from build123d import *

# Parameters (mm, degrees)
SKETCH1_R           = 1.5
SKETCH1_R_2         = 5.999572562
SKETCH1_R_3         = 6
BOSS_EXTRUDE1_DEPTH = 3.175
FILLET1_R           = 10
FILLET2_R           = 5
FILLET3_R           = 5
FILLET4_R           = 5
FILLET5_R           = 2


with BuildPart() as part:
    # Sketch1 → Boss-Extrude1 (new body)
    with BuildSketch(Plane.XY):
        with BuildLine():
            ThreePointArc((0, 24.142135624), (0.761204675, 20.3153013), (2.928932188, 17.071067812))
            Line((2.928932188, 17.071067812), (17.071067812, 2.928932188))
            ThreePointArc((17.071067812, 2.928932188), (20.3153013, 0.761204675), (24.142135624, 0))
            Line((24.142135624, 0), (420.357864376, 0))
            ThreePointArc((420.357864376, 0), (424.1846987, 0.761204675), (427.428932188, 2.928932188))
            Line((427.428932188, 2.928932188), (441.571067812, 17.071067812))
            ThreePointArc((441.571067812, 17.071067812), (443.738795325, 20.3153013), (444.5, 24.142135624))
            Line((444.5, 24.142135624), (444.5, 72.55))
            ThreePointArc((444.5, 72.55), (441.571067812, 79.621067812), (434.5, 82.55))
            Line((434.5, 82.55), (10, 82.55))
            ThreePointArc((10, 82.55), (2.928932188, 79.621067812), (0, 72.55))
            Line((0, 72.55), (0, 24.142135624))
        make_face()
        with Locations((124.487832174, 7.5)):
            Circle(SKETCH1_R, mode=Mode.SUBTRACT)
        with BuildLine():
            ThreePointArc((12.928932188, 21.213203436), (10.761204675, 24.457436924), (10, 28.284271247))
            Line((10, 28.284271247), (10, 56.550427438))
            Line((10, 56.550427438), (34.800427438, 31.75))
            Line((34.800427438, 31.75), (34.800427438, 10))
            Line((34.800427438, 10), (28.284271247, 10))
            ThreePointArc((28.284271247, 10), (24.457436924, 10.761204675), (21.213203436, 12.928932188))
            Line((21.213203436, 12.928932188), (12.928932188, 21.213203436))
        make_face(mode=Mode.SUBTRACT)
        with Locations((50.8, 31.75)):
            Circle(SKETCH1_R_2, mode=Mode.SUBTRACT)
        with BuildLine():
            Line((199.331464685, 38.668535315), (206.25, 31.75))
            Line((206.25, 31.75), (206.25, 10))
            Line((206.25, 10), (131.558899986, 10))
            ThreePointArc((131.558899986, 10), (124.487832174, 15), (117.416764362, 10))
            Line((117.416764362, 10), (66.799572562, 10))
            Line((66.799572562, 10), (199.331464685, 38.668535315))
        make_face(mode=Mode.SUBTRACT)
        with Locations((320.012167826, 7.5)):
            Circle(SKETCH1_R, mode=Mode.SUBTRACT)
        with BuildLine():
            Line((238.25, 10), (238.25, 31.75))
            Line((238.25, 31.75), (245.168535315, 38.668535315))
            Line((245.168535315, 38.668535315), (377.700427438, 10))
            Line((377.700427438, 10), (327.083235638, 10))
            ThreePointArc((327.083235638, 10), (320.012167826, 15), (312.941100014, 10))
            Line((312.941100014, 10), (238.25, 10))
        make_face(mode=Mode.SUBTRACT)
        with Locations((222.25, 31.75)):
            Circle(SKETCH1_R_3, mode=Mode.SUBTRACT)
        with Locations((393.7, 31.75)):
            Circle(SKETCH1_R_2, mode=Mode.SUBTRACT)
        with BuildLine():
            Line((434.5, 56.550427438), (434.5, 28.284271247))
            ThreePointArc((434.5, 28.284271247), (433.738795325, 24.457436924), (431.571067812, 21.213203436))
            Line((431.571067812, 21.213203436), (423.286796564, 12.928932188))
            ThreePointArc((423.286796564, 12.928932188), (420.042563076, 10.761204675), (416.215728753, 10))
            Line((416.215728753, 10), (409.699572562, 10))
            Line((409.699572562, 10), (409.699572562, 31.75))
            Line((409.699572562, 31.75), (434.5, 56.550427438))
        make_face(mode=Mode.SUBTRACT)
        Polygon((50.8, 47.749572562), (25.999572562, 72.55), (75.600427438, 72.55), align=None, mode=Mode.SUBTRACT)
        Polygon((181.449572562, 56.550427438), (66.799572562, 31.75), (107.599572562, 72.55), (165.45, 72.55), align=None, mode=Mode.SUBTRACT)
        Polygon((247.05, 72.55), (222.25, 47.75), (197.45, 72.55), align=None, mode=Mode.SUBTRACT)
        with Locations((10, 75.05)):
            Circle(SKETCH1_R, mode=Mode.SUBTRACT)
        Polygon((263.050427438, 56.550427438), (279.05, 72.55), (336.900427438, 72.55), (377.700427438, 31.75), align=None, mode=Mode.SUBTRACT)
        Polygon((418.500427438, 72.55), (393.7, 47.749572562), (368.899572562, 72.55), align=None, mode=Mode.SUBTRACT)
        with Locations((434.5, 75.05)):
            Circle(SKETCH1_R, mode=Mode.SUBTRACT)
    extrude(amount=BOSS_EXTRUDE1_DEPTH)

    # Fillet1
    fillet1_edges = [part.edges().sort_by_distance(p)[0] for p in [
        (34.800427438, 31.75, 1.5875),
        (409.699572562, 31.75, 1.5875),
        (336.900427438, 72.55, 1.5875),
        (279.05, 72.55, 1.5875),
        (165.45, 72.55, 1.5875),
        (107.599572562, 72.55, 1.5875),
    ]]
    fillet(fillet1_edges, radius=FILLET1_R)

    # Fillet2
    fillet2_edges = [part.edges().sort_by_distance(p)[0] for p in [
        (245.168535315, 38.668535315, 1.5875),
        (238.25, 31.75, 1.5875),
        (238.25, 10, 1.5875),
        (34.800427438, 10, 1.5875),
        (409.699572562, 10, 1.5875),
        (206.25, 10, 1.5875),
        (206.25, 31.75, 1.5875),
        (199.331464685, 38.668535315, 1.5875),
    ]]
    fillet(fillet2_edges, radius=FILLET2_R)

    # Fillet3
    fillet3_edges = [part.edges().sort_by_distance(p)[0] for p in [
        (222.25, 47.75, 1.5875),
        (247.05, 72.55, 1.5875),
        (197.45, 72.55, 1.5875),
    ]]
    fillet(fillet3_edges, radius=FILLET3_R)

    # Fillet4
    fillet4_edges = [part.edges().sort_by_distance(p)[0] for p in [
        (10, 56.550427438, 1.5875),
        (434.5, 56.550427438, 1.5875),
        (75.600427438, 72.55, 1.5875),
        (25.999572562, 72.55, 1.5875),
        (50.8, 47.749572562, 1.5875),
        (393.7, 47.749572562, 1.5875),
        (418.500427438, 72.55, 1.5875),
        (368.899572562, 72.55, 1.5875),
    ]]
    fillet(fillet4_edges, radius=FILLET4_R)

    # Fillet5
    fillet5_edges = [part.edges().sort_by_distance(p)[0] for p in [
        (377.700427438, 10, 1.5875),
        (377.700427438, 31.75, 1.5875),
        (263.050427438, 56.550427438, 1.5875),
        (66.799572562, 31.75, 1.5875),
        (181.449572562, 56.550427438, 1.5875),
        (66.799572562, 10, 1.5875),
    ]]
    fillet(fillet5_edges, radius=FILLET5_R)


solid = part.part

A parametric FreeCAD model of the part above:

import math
import FreeCAD as App
import Part
import Sketcher


def edges_at(feature, points):
    """Names of the edges that pass closest to the given points."""
    edges = feature.Shape.Edges
    near = lambda p: min(range(len(edges)), key=lambda i: edges[i].distToShape(Part.Vertex(*p))[0])
    return sorted({f"Edge{near(p) + 1}" for p in points})

doc = App.newDocument("Part")
body = doc.addObject("PartDesign::Body", "Body")

sketch1 = body.newObject("Sketcher::SketchObject", "Sketch")
sketch1.AttachmentSupport = (doc.getObject("XY_Plane"), [""])
sketch1.MapMode = "FlatFace"
sketch1.addGeometry(Part.ArcOfCircle(Part.Circle(App.Vector(10, 24.142136, 0), App.Vector(0, 0, 1), 10), math.radians(180), math.radians(225)), False)
sketch1.addGeometry(Part.LineSegment(App.Vector(2.928932, 17.071068, 0), App.Vector(17.071068, 2.928932, 0)), False)
sketch1.addGeometry(Part.ArcOfCircle(Part.Circle(App.Vector(24.142136, 10, 0), App.Vector(0, 0, 1), 10), math.radians(-135), math.radians(-90)), False)
sketch1.addGeometry(Part.LineSegment(App.Vector(24.142136, 0, 0), App.Vector(420.357864, 0, 0)), False)
sketch1.addGeometry(Part.ArcOfCircle(Part.Circle(App.Vector(420.357864, 10, 0), App.Vector(0, 0, 1), 10), math.radians(-90), math.radians(-45)), False)
sketch1.addGeometry(Part.LineSegment(App.Vector(427.428932, 2.928932, 0), App.Vector(441.571068, 17.071068, 0)), False)
sketch1.addGeometry(Part.ArcOfCircle(Part.Circle(App.Vector(434.5, 24.142136, 0), App.Vector(0, 0, 1), 10), math.radians(-45), math.radians(0)), False)
sketch1.addGeometry(Part.LineSegment(App.Vector(444.5, 24.142136, 0), App.Vector(444.5, 72.55, 0)), False)
sketch1.addGeometry(Part.ArcOfCircle(Part.Circle(App.Vector(434.5, 72.55, 0), App.Vector(0, 0, 1), 10), math.radians(0), math.radians(90)), False)
sketch1.addGeometry(Part.LineSegment(App.Vector(434.5, 82.55, 0), App.Vector(10, 82.55, 0)), False)
sketch1.addGeometry(Part.ArcOfCircle(Part.Circle(App.Vector(10, 72.55, 0), App.Vector(0, 0, 1), 10), math.radians(90), math.radians(180)), False)
sketch1.addGeometry(Part.LineSegment(App.Vector(0, 72.55, 0), App.Vector(0, 24.142136, 0)), False)
sketch1.addGeometry(Part.Circle(App.Vector(124.487832, 7.5, 0), App.Vector(0, 0, 1), 1.5), False)
sketch1.addGeometry(Part.Circle(App.Vector(50.8, 31.75, 0), App.Vector(0, 0, 1), 5.999573), False)
sketch1.addGeometry(Part.LineSegment(App.Vector(21.213203, 12.928932, 0), App.Vector(12.928932, 21.213203, 0)), False)
sketch1.addGeometry(Part.ArcOfCircle(Part.Circle(App.Vector(20, 28.284271, 0), App.Vector(0, 0, 1), 10), math.radians(-180), math.radians(-135)), False)
sketch1.addGeometry(Part.LineSegment(App.Vector(10, 28.284271, 0), App.Vector(10, 56.550427, 0)), False)
sketch1.addGeometry(Part.LineSegment(App.Vector(10, 56.550427, 0), App.Vector(34.800427, 31.75, 0)), False)
sketch1.addGeometry(Part.LineSegment(App.Vector(34.800427, 31.75, 0), App.Vector(34.800427, 10, 0)), False)
sketch1.addGeometry(Part.LineSegment(App.Vector(34.800427, 10, 0), App.Vector(28.284271, 10, 0)), False)
sketch1.addGeometry(Part.ArcOfCircle(Part.Circle(App.Vector(28.284271, 20, 0), App.Vector(0, 0, 1), 10), math.radians(-135), math.radians(-90)), False)
sketch1.addGeometry(Part.LineSegment(App.Vector(66.799573, 10, 0), App.Vector(199.331465, 38.668535, 0)), False)
sketch1.addGeometry(Part.LineSegment(App.Vector(199.331465, 38.668535, 0), App.Vector(206.25, 31.75, 0)), False)
sketch1.addGeometry(Part.LineSegment(App.Vector(206.25, 31.75, 0), App.Vector(206.25, 10, 0)), False)
sketch1.addGeometry(Part.LineSegment(App.Vector(206.25, 10, 0), App.Vector(131.5589, 10, 0)), False)
sketch1.addGeometry(Part.ArcOfCircle(Part.Circle(App.Vector(124.487832, 7.5, 0), App.Vector(0, 0, 1), 7.5), math.radians(19.471221), math.radians(160.528779)), False)
sketch1.addGeometry(Part.LineSegment(App.Vector(117.416764, 10, 0), App.Vector(66.799573, 10, 0)), False)
sketch1.addGeometry(Part.Circle(App.Vector(320.012168, 7.5, 0), App.Vector(0, 0, 1), 1.5), False)
sketch1.addGeometry(Part.Circle(App.Vector(222.25, 31.75, 0), App.Vector(0, 0, 1), 6), False)
sketch1.addGeometry(Part.LineSegment(App.Vector(312.9411, 10, 0), App.Vector(238.25, 10, 0)), False)
sketch1.addGeometry(Part.LineSegment(App.Vector(238.25, 10, 0), App.Vector(238.25, 31.75, 0)), False)
sketch1.addGeometry(Part.LineSegment(App.Vector(238.25, 31.75, 0), App.Vector(245.168535, 38.668535, 0)), False)
sketch1.addGeometry(Part.LineSegment(App.Vector(245.168535, 38.668535, 0), App.Vector(377.700427, 10, 0)), False)
sketch1.addGeometry(Part.LineSegment(App.Vector(377.700427, 10, 0), App.Vector(327.083236, 10, 0)), False)
sketch1.addGeometry(Part.ArcOfCircle(Part.Circle(App.Vector(320.012168, 7.5, 0), App.Vector(0, 0, 1), 7.5), math.radians(19.471221), math.radians(160.528779)), False)
sketch1.addGeometry(Part.Circle(App.Vector(393.7, 31.75, 0), App.Vector(0, 0, 1), 5.999573), False)
sketch1.addGeometry(Part.LineSegment(App.Vector(409.699573, 31.75, 0), App.Vector(434.5, 56.550427, 0)), False)
sketch1.addGeometry(Part.LineSegment(App.Vector(434.5, 56.550427, 0), App.Vector(434.5, 28.284271, 0)), False)
sketch1.addGeometry(Part.ArcOfCircle(Part.Circle(App.Vector(424.5, 28.284271, 0), App.Vector(0, 0, 1), 10), math.radians(-45), math.radians(0)), False)
sketch1.addGeometry(Part.LineSegment(App.Vector(431.571068, 21.213203, 0), App.Vector(423.286797, 12.928932, 0)), False)
sketch1.addGeometry(Part.ArcOfCircle(Part.Circle(App.Vector(416.215729, 20, 0), App.Vector(0, 0, 1), 10), math.radians(-90), math.radians(-45)), False)
sketch1.addGeometry(Part.LineSegment(App.Vector(416.215729, 10, 0), App.Vector(409.699573, 10, 0)), False)
sketch1.addGeometry(Part.LineSegment(App.Vector(409.699573, 10, 0), App.Vector(409.699573, 31.75, 0)), False)
sketch1.addGeometry(Part.LineSegment(App.Vector(165.45, 72.55, 0), App.Vector(181.449573, 56.550427, 0)), False)
sketch1.addGeometry(Part.LineSegment(App.Vector(181.449573, 56.550427, 0), App.Vector(66.799573, 31.75, 0)), False)
sketch1.addGeometry(Part.LineSegment(App.Vector(66.799573, 31.75, 0), App.Vector(107.599573, 72.55, 0)), False)
sketch1.addGeometry(Part.LineSegment(App.Vector(107.599573, 72.55, 0), App.Vector(165.45, 72.55, 0)), False)
sketch1.addGeometry(Part.LineSegment(App.Vector(75.600427, 72.55, 0), App.Vector(50.8, 47.749573, 0)), False)
sketch1.addGeometry(Part.LineSegment(App.Vector(50.8, 47.749573, 0), App.Vector(25.999573, 72.55, 0)), False)
sketch1.addGeometry(Part.LineSegment(App.Vector(25.999573, 72.55, 0), App.Vector(75.600427, 72.55, 0)), False)
sketch1.addGeometry(Part.Circle(App.Vector(10, 75.05, 0), App.Vector(0, 0, 1), 1.5), False)
sketch1.addGeometry(Part.LineSegment(App.Vector(377.700427, 31.75, 0), App.Vector(263.050427, 56.550427, 0)), False)
sketch1.addGeometry(Part.LineSegment(App.Vector(263.050427, 56.550427, 0), App.Vector(279.05, 72.55, 0)), False)
sketch1.addGeometry(Part.LineSegment(App.Vector(279.05, 72.55, 0), App.Vector(336.900427, 72.55, 0)), False)
sketch1.addGeometry(Part.LineSegment(App.Vector(336.900427, 72.55, 0), App.Vector(377.700427, 31.75, 0)), False)
sketch1.addGeometry(Part.LineSegment(App.Vector(197.45, 72.55, 0), App.Vector(247.05, 72.55, 0)), False)
sketch1.addGeometry(Part.LineSegment(App.Vector(247.05, 72.55, 0), App.Vector(222.25, 47.75, 0)), False)
sketch1.addGeometry(Part.LineSegment(App.Vector(222.25, 47.75, 0), App.Vector(197.45, 72.55, 0)), False)
sketch1.addGeometry(Part.LineSegment(App.Vector(368.899573, 72.55, 0), App.Vector(418.500427, 72.55, 0)), False)
sketch1.addGeometry(Part.LineSegment(App.Vector(418.500427, 72.55, 0), App.Vector(393.7, 47.749573, 0)), False)
sketch1.addGeometry(Part.LineSegment(App.Vector(393.7, 47.749573, 0), App.Vector(368.899573, 72.55, 0)), False)
sketch1.addGeometry(Part.Circle(App.Vector(434.5, 75.05, 0), App.Vector(0, 0, 1), 1.5), False)
sketch1.addConstraint(Sketcher.Constraint("Tangent", 0, 2, 1, 1))
sketch1.addConstraint(Sketcher.Constraint("Tangent", 1, 2, 2, 1))
sketch1.addConstraint(Sketcher.Constraint("Tangent", 2, 2, 3, 1))
sketch1.addConstraint(Sketcher.Constraint("Tangent", 3, 2, 4, 1))
sketch1.addConstraint(Sketcher.Constraint("Tangent", 4, 2, 5, 1))
sketch1.addConstraint(Sketcher.Constraint("Tangent", 5, 2, 6, 1))
sketch1.addConstraint(Sketcher.Constraint("Tangent", 6, 2, 7, 1))
sketch1.addConstraint(Sketcher.Constraint("Tangent", 7, 2, 8, 1))
sketch1.addConstraint(Sketcher.Constraint("Tangent", 8, 2, 9, 1))
sketch1.addConstraint(Sketcher.Constraint("Tangent", 9, 2, 10, 1))
sketch1.addConstraint(Sketcher.Constraint("Tangent", 10, 2, 11, 1))
sketch1.addConstraint(Sketcher.Constraint("Tangent", 11, 2, 0, 1))
sketch1.addConstraint(Sketcher.Constraint("Tangent", 14, 2, 15, 2))
sketch1.addConstraint(Sketcher.Constraint("Tangent", 15, 1, 16, 1))
sketch1.addConstraint(Sketcher.Constraint("Coincident", 16, 2, 17, 1))
sketch1.addConstraint(Sketcher.Constraint("Coincident", 17, 2, 18, 1))
sketch1.addConstraint(Sketcher.Constraint("Coincident", 18, 2, 19, 1))
sketch1.addConstraint(Sketcher.Constraint("Tangent", 19, 2, 20, 2))
sketch1.addConstraint(Sketcher.Constraint("Tangent", 20, 1, 14, 1))
sketch1.addConstraint(Sketcher.Constraint("Coincident", 21, 2, 22, 1))
sketch1.addConstraint(Sketcher.Constraint("Coincident", 22, 2, 23, 1))
sketch1.addConstraint(Sketcher.Constraint("Coincident", 23, 2, 24, 1))
sketch1.addConstraint(Sketcher.Constraint("Coincident", 24, 2, 25, 1))
sketch1.addConstraint(Sketcher.Constraint("Coincident", 25, 2, 26, 1))
sketch1.addConstraint(Sketcher.Constraint("Coincident", 26, 2, 21, 1))
sketch1.addConstraint(Sketcher.Constraint("Coincident", 29, 2, 30, 1))
sketch1.addConstraint(Sketcher.Constraint("Coincident", 30, 2, 31, 1))
sketch1.addConstraint(Sketcher.Constraint("Coincident", 31, 2, 32, 1))
sketch1.addConstraint(Sketcher.Constraint("Coincident", 32, 2, 33, 1))
sketch1.addConstraint(Sketcher.Constraint("Coincident", 33, 2, 34, 1))
sketch1.addConstraint(Sketcher.Constraint("Coincident", 34, 2, 29, 1))
sketch1.addConstraint(Sketcher.Constraint("Coincident", 36, 2, 37, 1))
sketch1.addConstraint(Sketcher.Constraint("Tangent", 37, 2, 38, 2))
sketch1.addConstraint(Sketcher.Constraint("Tangent", 38, 1, 39, 1))
sketch1.addConstraint(Sketcher.Constraint("Tangent", 39, 2, 40, 2))
sketch1.addConstraint(Sketcher.Constraint("Tangent", 40, 1, 41, 1))
sketch1.addConstraint(Sketcher.Constraint("Coincident", 41, 2, 42, 1))
sketch1.addConstraint(Sketcher.Constraint("Coincident", 42, 2, 36, 1))
sketch1.addConstraint(Sketcher.Constraint("Coincident", 43, 2, 44, 1))
sketch1.addConstraint(Sketcher.Constraint("Coincident", 44, 2, 45, 1))
sketch1.addConstraint(Sketcher.Constraint("Coincident", 45, 2, 46, 1))
sketch1.addConstraint(Sketcher.Constraint("Coincident", 46, 2, 43, 1))
sketch1.addConstraint(Sketcher.Constraint("Coincident", 47, 2, 48, 1))
sketch1.addConstraint(Sketcher.Constraint("Coincident", 48, 2, 49, 1))
sketch1.addConstraint(Sketcher.Constraint("Coincident", 49, 2, 47, 1))
sketch1.addConstraint(Sketcher.Constraint("Coincident", 51, 2, 52, 1))
sketch1.addConstraint(Sketcher.Constraint("Coincident", 52, 2, 53, 1))
sketch1.addConstraint(Sketcher.Constraint("Coincident", 53, 2, 54, 1))
sketch1.addConstraint(Sketcher.Constraint("Coincident", 54, 2, 51, 1))
sketch1.addConstraint(Sketcher.Constraint("Coincident", 55, 2, 56, 1))
sketch1.addConstraint(Sketcher.Constraint("Coincident", 56, 2, 57, 1))
sketch1.addConstraint(Sketcher.Constraint("Coincident", 57, 2, 55, 1))
sketch1.addConstraint(Sketcher.Constraint("Coincident", 58, 2, 59, 1))
sketch1.addConstraint(Sketcher.Constraint("Coincident", 59, 2, 60, 1))
sketch1.addConstraint(Sketcher.Constraint("Coincident", 60, 2, 58, 1))
sketch1.addConstraint(Sketcher.Constraint("Horizontal", 3))
sketch1.addConstraint(Sketcher.Constraint("Vertical", 7))
sketch1.addConstraint(Sketcher.Constraint("Horizontal", 9))
sketch1.addConstraint(Sketcher.Constraint("Vertical", 11))
sketch1.addConstraint(Sketcher.Constraint("Vertical", 16))
sketch1.addConstraint(Sketcher.Constraint("Vertical", 18))
sketch1.addConstraint(Sketcher.Constraint("Horizontal", 19))
sketch1.addConstraint(Sketcher.Constraint("Vertical", 23))
sketch1.addConstraint(Sketcher.Constraint("Horizontal", 24))
sketch1.addConstraint(Sketcher.Constraint("Horizontal", 26))
sketch1.addConstraint(Sketcher.Constraint("Horizontal", 29))
sketch1.addConstraint(Sketcher.Constraint("Vertical", 30))
sketch1.addConstraint(Sketcher.Constraint("Horizontal", 33))
sketch1.addConstraint(Sketcher.Constraint("Vertical", 37))
sketch1.addConstraint(Sketcher.Constraint("Horizontal", 41))
sketch1.addConstraint(Sketcher.Constraint("Vertical", 42))
sketch1.addConstraint(Sketcher.Constraint("Horizontal", 46))
sketch1.addConstraint(Sketcher.Constraint("Horizontal", 49))
sketch1.addConstraint(Sketcher.Constraint("Horizontal", 53))
sketch1.addConstraint(Sketcher.Constraint("Horizontal", 55))
sketch1.addConstraint(Sketcher.Constraint("Horizontal", 58))
sketch1.addConstraint(Sketcher.Constraint("Coincident", 25, 3, 12, 3))
sketch1.addConstraint(Sketcher.Constraint("Coincident", 34, 3, 27, 3))
sketch1.addConstraint(Sketcher.Constraint("Equal", 0, 2))
sketch1.addConstraint(Sketcher.Constraint("Equal", 2, 4))
sketch1.addConstraint(Sketcher.Constraint("Equal", 4, 6))
sketch1.addConstraint(Sketcher.Constraint("Equal", 6, 8))
sketch1.addConstraint(Sketcher.Constraint("Equal", 8, 10))
sketch1.addConstraint(Sketcher.Constraint("Equal", 10, 15))
sketch1.addConstraint(Sketcher.Constraint("Equal", 15, 20))
sketch1.addConstraint(Sketcher.Constraint("Equal", 12, 27))
sketch1.addConstraint(Sketcher.Constraint("Equal", 25, 34))
sketch1.addConstraint(Sketcher.Constraint("Equal", 13, 35))
sketch1.addConstraint(Sketcher.Constraint("Equal", 20, 38))
sketch1.addConstraint(Sketcher.Constraint("Equal", 38, 40))
sketch1.addConstraint(Sketcher.Constraint("Equal", 27, 50))
sketch1.addConstraint(Sketcher.Constraint("Equal", 50, 61))
sketch1.addConstraint(Sketcher.Constraint("PointOnObject", 2, 2, -1))
sketch1.addConstraint(Sketcher.Constraint("PointOnObject", 10, 2, -2))
sketch1.addConstraint(Sketcher.Constraint("Perpendicular", 1, 5))
sketch1.addConstraint(Sketcher.Constraint("Perpendicular", 5, 14))
sketch1.addConstraint(Sketcher.Constraint("Parallel", 14, 17))
sketch1.addConstraint(Sketcher.Constraint("Parallel", 17, 22))
sketch1.addConstraint(Sketcher.Constraint("Perpendicular", 22, 31))
sketch1.addConstraint(Sketcher.Constraint("Parallel", 31, 36))
sketch1.addConstraint(Sketcher.Constraint("Parallel", 36, 39))
sketch1.addConstraint(Sketcher.Constraint("Perpendicular", 39, 43))
sketch1.addConstraint(Sketcher.Constraint("Parallel", 21, 44))
sketch1.addConstraint(Sketcher.Constraint("Perpendicular", 43, 45))
sketch1.addConstraint(Sketcher.Constraint("Parallel", 45, 47))
sketch1.addConstraint(Sketcher.Constraint("Perpendicular", 47, 48))
sketch1.addConstraint(Sketcher.Constraint("Parallel", 32, 51))
sketch1.addConstraint(Sketcher.Constraint("Perpendicular", 48, 52))
sketch1.addConstraint(Sketcher.Constraint("Perpendicular", 52, 54))
sketch1.addConstraint(Sketcher.Constraint("Perpendicular", 54, 56))
sketch1.addConstraint(Sketcher.Constraint("Perpendicular", 56, 57))
sketch1.addConstraint(Sketcher.Constraint("Perpendicular", 57, 59))
sketch1.addConstraint(Sketcher.Constraint("Perpendicular", 59, 60))
sketch1.addConstraint(Sketcher.Constraint("Horizontal", 0, 3, 6, 3))
sketch1.addConstraint(Sketcher.Constraint("Horizontal", 25, 3, 27, 3))
sketch1.addConstraint(Sketcher.Constraint("Horizontal", 13, 3, 28, 3))
sketch1.addConstraint(Sketcher.Constraint("Horizontal", 28, 3, 35, 3))
sketch1.addConstraint(Sketcher.Constraint("Horizontal", 15, 3, 38, 3))
sketch1.addConstraint(Sketcher.Constraint("Horizontal", 20, 3, 40, 3))
sketch1.addConstraint(Sketcher.Constraint("Horizontal", 50, 3, 61, 3))
sketch1.addConstraint(Sketcher.Constraint("Horizontal", 1, 2, 4, 2))
sketch1.addConstraint(Sketcher.Constraint("Horizontal", 35, 3, 17, 2))
sketch1.addConstraint(Sketcher.Constraint("Horizontal", 4, 3, 18, 2))
sketch1.addConstraint(Sketcher.Constraint("Horizontal", 17, 2, 22, 2))
sketch1.addConstraint(Sketcher.Constraint("Horizontal", 19, 2, 23, 2))
sketch1.addConstraint(Sketcher.Constraint("Horizontal", 24, 2, 25, 2))
sketch1.addConstraint(Sketcher.Constraint("Horizontal", 26, 2, 29, 2))
sketch1.addConstraint(Sketcher.Constraint("Horizontal", 22, 2, 30, 2))
sketch1.addConstraint(Sketcher.Constraint("Horizontal", 21, 2, 31, 2))
sketch1.addConstraint(Sketcher.Constraint("Horizontal", 29, 2, 32, 2))
sketch1.addConstraint(Sketcher.Constraint("Horizontal", 16, 2, 36, 2))
sketch1.addConstraint(Sketcher.Constraint("Horizontal", 30, 2, 42, 2))
sketch1.addConstraint(Sketcher.Constraint("Horizontal", 36, 2, 43, 2))
sketch1.addConstraint(Sketcher.Constraint("Horizontal", 42, 2, 44, 2))
sketch1.addConstraint(Sketcher.Constraint("Horizontal", 10, 2, 45, 2))
sketch1.addConstraint(Sketcher.Constraint("Horizontal", 46, 2, 48, 2))
sketch1.addConstraint(Sketcher.Constraint("Horizontal", 43, 2, 51, 2))
sketch1.addConstraint(Sketcher.Constraint("Horizontal", 49, 2, 52, 2))
sketch1.addConstraint(Sketcher.Constraint("Horizontal", 44, 2, 54, 2))
sketch1.addConstraint(Sketcher.Constraint("Horizontal", 53, 2, 55, 2))
sketch1.addConstraint(Sketcher.Constraint("Horizontal", 57, 2, 58, 2))
sketch1.addConstraint(Sketcher.Constraint("Horizontal", 47, 2, 59, 2))
sketch1.addConstraint(Sketcher.Constraint("Vertical", 10, 3, 50, 3))
sketch1.addConstraint(Sketcher.Constraint("Vertical", 8, 3, 61, 3))
sketch1.addConstraint(Sketcher.Constraint("Vertical", 9, 2, 15, 1))
sketch1.addConstraint(Sketcher.Constraint("Vertical", 8, 2, 36, 2))
sketch1.addConstraint(Sketcher.Constraint("Vertical", 26, 2, 44, 2))
sketch1.addConstraint(Sketcher.Constraint("Vertical", 13, 3, 47, 2))
sketch1.addConstraint(Sketcher.Constraint("Vertical", 32, 2, 54, 2))
sketch1.addConstraint(Sketcher.Constraint("Vertical", 28, 3, 56, 2))
sketch1.addConstraint(Sketcher.Constraint("Vertical", 35, 3, 59, 2))
sketch1.addConstraint(Sketcher.Constraint("Equal", 24, 29))
sketch1.addConstraint(Sketcher.Constraint("Equal", 26, 33))
sketch1.addConstraint(Sketcher.Constraint("Equal", 36, 47))
sketch1.addConstraint(Sketcher.Constraint("Diameter", 12, 3.0))
sketch1.addConstraint(Sketcher.Constraint("Diameter", 28, 12.0))
sketch1.addConstraint(Sketcher.Constraint("Radius", 0, 10.0))
sketch1.addConstraint(Sketcher.Constraint("Radius", 25, 7.5))
sketch1.addConstraint(Sketcher.Constraint("Distance", 1, 20.0))
sketch1.addConstraint(Sketcher.Constraint("DistanceX", 9, 2, 9, 1, 424.5))
sketch1.addConstraint(Sketcher.Constraint("DistanceX", 55, 1, 55, 2, 49.6))
sketch1.addConstraint(Sketcher.Constraint("DistanceY", 18, 2, 18, 1, 21.75))
sketch1.addConstraint(Sketcher.Constraint("DistanceY", -1, 1, 12, 3, 7.5))
sketch1.addConstraint(Sketcher.Constraint("DistanceX", -1, 1, 13, 3, 50.8))
sketch1.addConstraint(Sketcher.Constraint("DistanceX", -1, 1, 35, 3, 393.7))
sketch1.addConstraint(Sketcher.Constraint("DistanceY", -1, 1, 8, 3, 72.55))
sketch1.addConstraint(Sketcher.Constraint("DistanceX", -1, 1, 28, 3, 222.25))
sketch1.addConstraint(Sketcher.Constraint("DistanceY", -1, 1, 50, 3, 75.05))
sketch1.addConstraint(Sketcher.Constraint("DistanceX", -1, 1, 22, 2, 206.25))
sketch1.addConstraint(Sketcher.Constraint("DistanceX", -1, 1, 29, 2, 238.25))
sketch1.addConstraint(Sketcher.Constraint("DistanceX", -1, 1, 46, 2, 165.45))
sketch1.addConstraint(Sketcher.Constraint("Diameter", 13, 11.999145))
sketch1.addConstraint(Sketcher.Constraint("DistanceX", 24, 2, 24, 1, 74.6911))
sketch1.addConstraint(Sketcher.Constraint("Distance", 17, 35.073101))
sketch1.addConstraint(Sketcher.Constraint("DistanceX", 26, 2, 26, 1, 50.617192))
sketch1.addConstraint(Sketcher.Constraint("Distance", 14, 11.715729))
pad1 = body.newObject("PartDesign::Pad", "Pad")
pad1.Profile = sketch1
pad1.Length = 3.175
doc.recompute()

fillet = body.newObject("PartDesign::Fillet", "Fillet")
fillet.Base = (pad1, edges_at(pad1, [
    (34.8, 31.75, 1.587),
    (409.7, 31.75, 1.587),
    (336.9, 72.55, 1.587),
    (279.05, 72.55, 1.587),
    (165.45, 72.55, 1.587),
    (107.6, 72.55, 1.587),
]))
fillet.Radius = 10
doc.recompute()

fillet2 = body.newObject("PartDesign::Fillet", "Fillet001")
fillet2.Base = (fillet, edges_at(fillet, [
    (245.169, 38.669, 1.587),
    (238.25, 31.75, 1.587),
    (238.25, 10, 1.587),
    (34.8, 10, 1.587),
    (409.7, 10, 1.587),
    (206.25, 10, 1.587),
    (206.25, 31.75, 1.587),
    (199.331, 38.669, 1.587),
]))
fillet2.Radius = 5
doc.recompute()

fillet3 = body.newObject("PartDesign::Fillet", "Fillet002")
fillet3.Base = (fillet2, edges_at(fillet2, [(222.25, 47.75, 1.587), (247.05, 72.55, 1.587), (197.45, 72.55, 1.587)]))
fillet3.Radius = 5
doc.recompute()

fillet4 = body.newObject("PartDesign::Fillet", "Fillet003")
fillet4.Base = (fillet3, edges_at(fillet3, [
    (10, 56.55, 1.587),
    (434.5, 56.55, 1.587),
    (75.6, 72.55, 1.587),
    (26, 72.55, 1.587),
    (50.8, 47.75, 1.587),
    (393.7, 47.75, 1.587),
    (418.5, 72.55, 1.587),
    (368.9, 72.55, 1.587),
]))
fillet4.Radius = 5
doc.recompute()

fillet5 = body.newObject("PartDesign::Fillet", "Fillet004")
fillet5.Base = (fillet4, edges_at(fillet4, [
    (377.7, 10, 1.587),
    (377.7, 31.75, 1.587),
    (263.05, 56.55, 1.587),
    (66.8, 31.75, 1.587),
    (181.45, 56.55, 1.587),
    (66.8, 10, 1.587),
]))
fillet5.Radius = 2

doc.recompute()
